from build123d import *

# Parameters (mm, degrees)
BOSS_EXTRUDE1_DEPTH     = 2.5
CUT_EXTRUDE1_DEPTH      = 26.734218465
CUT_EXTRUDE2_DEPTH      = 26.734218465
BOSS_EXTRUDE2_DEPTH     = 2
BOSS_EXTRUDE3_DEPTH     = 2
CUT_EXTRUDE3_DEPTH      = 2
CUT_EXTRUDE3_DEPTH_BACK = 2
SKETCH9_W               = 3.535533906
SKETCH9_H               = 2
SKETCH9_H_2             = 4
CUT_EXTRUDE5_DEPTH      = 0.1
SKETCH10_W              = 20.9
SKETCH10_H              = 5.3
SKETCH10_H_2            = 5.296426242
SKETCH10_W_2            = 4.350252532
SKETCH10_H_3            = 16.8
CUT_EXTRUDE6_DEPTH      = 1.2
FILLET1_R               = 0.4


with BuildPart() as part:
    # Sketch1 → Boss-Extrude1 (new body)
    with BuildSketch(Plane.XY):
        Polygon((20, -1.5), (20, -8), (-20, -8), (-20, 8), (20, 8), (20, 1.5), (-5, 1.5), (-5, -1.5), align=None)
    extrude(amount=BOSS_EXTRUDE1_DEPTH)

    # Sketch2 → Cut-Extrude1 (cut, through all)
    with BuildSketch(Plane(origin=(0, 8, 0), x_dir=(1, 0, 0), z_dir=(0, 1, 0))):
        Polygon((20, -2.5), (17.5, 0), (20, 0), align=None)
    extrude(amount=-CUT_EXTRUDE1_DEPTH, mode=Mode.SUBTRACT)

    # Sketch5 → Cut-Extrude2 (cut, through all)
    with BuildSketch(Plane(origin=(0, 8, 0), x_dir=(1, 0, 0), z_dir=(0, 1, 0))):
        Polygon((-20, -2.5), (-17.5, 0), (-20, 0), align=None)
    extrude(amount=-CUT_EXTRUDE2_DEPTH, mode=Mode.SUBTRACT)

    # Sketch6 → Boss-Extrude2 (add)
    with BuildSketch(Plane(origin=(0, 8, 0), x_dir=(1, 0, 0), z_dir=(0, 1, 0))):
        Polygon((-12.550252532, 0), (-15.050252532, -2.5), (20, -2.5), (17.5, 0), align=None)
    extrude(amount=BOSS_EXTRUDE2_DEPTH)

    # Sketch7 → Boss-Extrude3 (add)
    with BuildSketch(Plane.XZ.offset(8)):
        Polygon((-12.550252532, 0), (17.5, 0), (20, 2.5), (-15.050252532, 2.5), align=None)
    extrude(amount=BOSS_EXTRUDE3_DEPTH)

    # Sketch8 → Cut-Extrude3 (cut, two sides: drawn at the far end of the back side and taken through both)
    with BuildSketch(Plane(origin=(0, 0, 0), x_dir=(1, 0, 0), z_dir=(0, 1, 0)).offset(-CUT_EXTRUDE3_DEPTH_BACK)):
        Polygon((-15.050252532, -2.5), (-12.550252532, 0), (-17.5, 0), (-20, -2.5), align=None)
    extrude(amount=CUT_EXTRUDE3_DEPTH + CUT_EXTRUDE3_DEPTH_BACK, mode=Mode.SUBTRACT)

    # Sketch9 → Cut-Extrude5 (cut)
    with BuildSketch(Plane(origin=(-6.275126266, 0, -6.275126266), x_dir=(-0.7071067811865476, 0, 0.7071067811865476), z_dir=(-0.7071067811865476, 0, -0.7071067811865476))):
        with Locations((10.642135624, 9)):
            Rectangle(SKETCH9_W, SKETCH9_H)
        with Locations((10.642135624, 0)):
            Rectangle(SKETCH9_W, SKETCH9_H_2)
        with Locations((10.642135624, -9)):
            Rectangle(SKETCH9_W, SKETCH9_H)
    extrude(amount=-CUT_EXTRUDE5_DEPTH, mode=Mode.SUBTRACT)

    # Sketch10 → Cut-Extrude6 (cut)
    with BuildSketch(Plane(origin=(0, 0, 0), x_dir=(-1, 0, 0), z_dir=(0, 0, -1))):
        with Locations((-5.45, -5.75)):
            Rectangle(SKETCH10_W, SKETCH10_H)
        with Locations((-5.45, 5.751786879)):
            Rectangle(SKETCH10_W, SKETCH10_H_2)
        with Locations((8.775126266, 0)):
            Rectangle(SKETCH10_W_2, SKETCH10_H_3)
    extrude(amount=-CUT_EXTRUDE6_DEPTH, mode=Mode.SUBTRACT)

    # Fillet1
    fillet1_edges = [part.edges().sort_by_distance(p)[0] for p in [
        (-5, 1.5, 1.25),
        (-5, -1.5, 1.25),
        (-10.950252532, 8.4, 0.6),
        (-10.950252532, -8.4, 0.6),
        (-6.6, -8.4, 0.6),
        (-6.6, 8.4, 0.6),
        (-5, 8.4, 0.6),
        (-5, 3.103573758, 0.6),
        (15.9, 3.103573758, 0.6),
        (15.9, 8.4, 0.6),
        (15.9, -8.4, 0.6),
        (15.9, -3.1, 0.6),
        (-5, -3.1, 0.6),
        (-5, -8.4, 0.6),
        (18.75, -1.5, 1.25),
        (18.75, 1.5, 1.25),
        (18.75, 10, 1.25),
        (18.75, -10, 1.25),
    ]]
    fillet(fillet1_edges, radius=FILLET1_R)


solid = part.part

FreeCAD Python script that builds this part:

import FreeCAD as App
import Part
import Sketcher

V = App.Vector
Q = App.Units.Quantity


def edges_at(feature, points):
    """Names of the edges that pass closest to the given points."""
    edges = feature.Shape.Edges
    near = lambda p: min(range(len(edges)), key=lambda i: edges[i].distToShape(Part.Vertex(*p))[0])
    return sorted({f"Edge{near(p) + 1}" for p in points})

doc = App.newDocument("Part")
params = doc.addObject("Spreadsheet::Sheet", "Params")
for row, (alias, value) in enumerate([
    ("sketch1_width", "25 mm"),
    ("sketch1_width2", "40 mm"),
    ("sketch1_height", "3 mm"),
    ("sketch1_height2", "16 mm"),
    ("pad1_length", "2.5 mm"),
    ("sketch2_width", "2.5 mm"),
    ("sketch3_width", "2.5 mm"),
    ("pad2_length", "2 mm"),
    ("pad3_length", "2 mm"),
    ("pocket3_length", "2 mm"),
    ("pocket3_length2", "2 mm"),
    ("sketch7_height", "2 mm"),
    ("sketch7_height2", "4 mm"),
    ("pocket4_length", "0.1 mm"),
    ("sketch8_width", "20.9 mm"),
    ("sketch8_height", "5.3 mm"),
    ("sketch8_height2", "16.8 mm"),
    ("pocket5_length", "1.2 mm"),
    ("fillet_radius", "0.4 mm"),
], start=1):
    params.set(f"A{row}", alias)
    params.set(f"B{row}", "=" + value)
    params.setAlias(f"B{row}", alias)

body = doc.addObject("PartDesign::Body", "Body")

sketch1 = body.newObject("Sketcher::SketchObject", "Sketch")
sketch1.AttachmentSupport = (doc.getObject("XY_Plane"), [""])
sketch1.MapMode = "FlatFace"
sketch1.addGeometry([
    Part.LineSegment(V(20, -8, 0), V(20, -1.5, 0)),
    Part.LineSegment(V(20, -1.5, 0), V(-5, -1.5, 0)),
    Part.LineSegment(V(-5, -1.5, 0), V(-5, 1.5, 0)),
    Part.LineSegment(V(-5, 1.5, 0), V(20, 1.5, 0)),
    Part.LineSegment(V(20, 1.5, 0), V(20, 8, 0)),
    Part.LineSegment(V(20, 8, 0), V(-20, 8, 0)),
    Part.LineSegment(V(-20, 8, 0), V(-20, -8, 0)),
    Part.LineSegment(V(-20, -8, 0), V(20, -8, 0)),
], False)
sketch1.addConstraint([
    Sketcher.Constraint("Coincident", 0, 2, 1, 1),
    Sketcher.Constraint("Coincident", 1, 2, 2, 1),
    Sketcher.Constraint("Coincident", 2, 2, 3, 1),
    Sketcher.Constraint("Coincident", 3, 2, 4, 1),
    Sketcher.Constraint("Coincident", 4, 2, 5, 1),
    Sketcher.Constraint("Coincident", 5, 2, 6, 1),
    Sketcher.Constraint("Coincident", 6, 2, 7, 1),
    Sketcher.Constraint("Coincident", 7, 2, 0, 1),
    Sketcher.Constraint("Vertical", 0),
    Sketcher.Constraint("Horizontal", 1),
    Sketcher.Constraint("Vertical", 2),
    Sketcher.Constraint("Horizontal", 3),
    Sketcher.Constraint("Vertical", 4),
    Sketcher.Constraint("Horizontal", 5),
    Sketcher.Constraint("Vertical", 6),
    Sketcher.Constraint("Horizontal", 7),
    Sketcher.Constraint("Symmetric", 4, 2, 6, 2, -1, 1),
    Sketcher.Constraint("Symmetric", 0, 2, 3, 2, -1),
    Sketcher.Constraint("DistanceX", 1, 2, 1, 1, 25.0),
    Sketcher.Constraint("DistanceX", 5, 2, 5, 1, 40.0),
    Sketcher.Constraint("DistanceY", 2, 1, 2, 2, 3.0),
    Sketcher.Constraint("DistanceY", 6, 2, 6, 1, 16.0),
])
sketch1.setExpression("Constraints[18]", "Params.sketch1_width")
sketch1.setExpression("Constraints[19]", "Params.sketch1_width2")
sketch1.setExpression("Constraints[20]", "Params.sketch1_height")
sketch1.setExpression("Constraints[21]", "Params.sketch1_height2")
pad1 = body.newObject("PartDesign::Pad", "Pad")
pad1.Profile = sketch1
pad1.setExpression("Length", "Params.pad1_length")

sketch2 = body.newObject("Sketcher::SketchObject", "Sketch001")
sketch2.AttachmentSupport = (doc.getObject("XZ_Plane"), [""])
sketch2.MapMode = "FlatFace"
sketch2.AttachmentOffset = App.Placement(V(0, 0, -8), App.Rotation())
sketch2.addGeometry([
    Part.LineSegment(V(17.5, 0, 0), V(20, 2.5, 0)),
    Part.LineSegment(V(20, 2.5, 0), V(20, 0, 0)),
    Part.LineSegment(V(20, 0, 0), V(17.5, 0, 0)),
], False)
sketch2.addConstraint([
    Sketcher.Constraint("Coincident", 0, 2, 1, 1),
    Sketcher.Constraint("Coincident", 1, 2, 2, 1),
    Sketcher.Constraint("Coincident", 2, 2, 0, 1),
    Sketcher.Constraint("Vertical", 1),
    Sketcher.Constraint("Horizontal", 2),
    Sketcher.Constraint("PointOnObject", 1, 2, -1),
    Sketcher.Constraint("Equal", 2, 1),
    Sketcher.Constraint("DistanceX", 2, 2, 2, 1, 2.5),
    Sketcher.Constraint("DistanceX", -1, 1, 0, 2, 20.0),
])
sketch2.setExpression("Constraints[7]", "Params.sketch2_width")
pocket1 = body.newObject("PartDesign::Pocket", "Pocket")
pocket1.Profile = sketch2
pocket1.Type = "ThroughAll"
pocket1.Reversed = True

sketch3 = body.newObject("Sketcher::SketchObject", "Sketch002")
sketch3.AttachmentSupport = (doc.getObject("XZ_Plane"), [""])
sketch3.MapMode = "FlatFace"
sketch3.AttachmentOffset = App.Placement(V(0, 0, -8), App.Rotation())
sketch3.addGeometry([
    Part.LineSegment(V(-20, 2.5, 0), V(-17.5, 0, 0)),
    Part.LineSegment(V(-17.5, 0, 0), V(-20, 0, 0)),
    Part.LineSegment(V(-20, 0, 0), V(-20, 2.5, 0)),
], False)
sketch3.addConstraint([
    Sketcher.Constraint("Coincident", 0, 2, 1, 1),
    Sketcher.Constraint("Coincident", 1, 2, 2, 1),
    Sketcher.Constraint("Coincident", 2, 2, 0, 1),
    Sketcher.Constraint("Horizontal", 1),
    Sketcher.Constraint("Vertical", 2),
    Sketcher.Constraint("PointOnObject", 0, 2, -1),
    Sketcher.Constraint("Equal", 1, 2),
    Sketcher.Constraint("DistanceX", 1, 2, 1, 1, 2.5),
    Sketcher.Constraint("DistanceX", 1, 2, -1, 1, 20.0),
])
sketch3.setExpression("Constraints[7]", "Params.sketch3_width")
pocket2 = body.newObject("PartDesign::Pocket", "Pocket001")
pocket2.Profile = sketch3
pocket2.Type = "ThroughAll"
pocket2.Reversed = True

sketch4 = body.newObject("Sketcher::SketchObject", "Sketch003")
sketch4.AttachmentSupport = (doc.getObject("XZ_Plane"), [""])
sketch4.MapMode = "FlatFace"
sketch4.AttachmentOffset = App.Placement(V(0, 0, -8), App.Rotation())
sketch4.addGeometry([
    Part.LineSegment(V(-12.6, 0, 0), V(-15.1, 2.5, 0)),
    Part.LineSegment(V(-15.1, 2.5, 0), V(20, 2.5, 0)),
    Part.LineSegment(V(20, 2.5, 0), V(17.5, 0, 0)),
    Part.LineSegment(V(17.5, 0, 0), V(-12.6, 0, 0)),
], False)
sketch4.addConstraint([
    Sketcher.Constraint("Coincident", 0, 2, 1, 1),
    Sketcher.Constraint("Coincident", 1, 2, 2, 1),
    Sketcher.Constraint("Coincident", 2, 2, 3, 1),
    Sketcher.Constraint("Coincident", 3, 2, 0, 1),
    Sketcher.Constraint("Horizontal", 1),
    Sketcher.Constraint("Horizontal", 3),
    Sketcher.Constraint("PointOnObject", 2, 2, -1),
    Sketcher.Constraint("Perpendicular", 0, 2),
    Sketcher.Constraint("Equal", 0, 2),
    Sketcher.Constraint("DistanceX", -1, 1, 1, 2, 20.0),
    Sketcher.Constraint("DistanceY", -1, 1, 0, 2, 2.5),
    Sketcher.Constraint("DistanceX", 1, 1, 1, 2, 35.050253),
])
pad2 = body.newObject("PartDesign::Pad", "Pad001")
pad2.Profile = sketch4
pad2.setExpression("Length", "Params.pad2_length")
pad2.Reversed = True

sketch5 = body.newObject("Sketcher::SketchObject", "Sketch004")
sketch5.AttachmentSupport = (doc.getObject("XZ_Plane"), [""])
sketch5.MapMode = "FlatFace"
sketch5.AttachmentOffset = App.Placement(V(0, 0, 8), App.Rotation())
sketch5.addGeometry([
    Part.LineSegment(V(-12.6, 0, 0), V(17.5, 0, 0)),
    Part.LineSegment(V(17.5, 0, 0), V(20, 2.5, 0)),
    Part.LineSegment(V(20, 2.5, 0), V(-15.1, 2.5, 0)),
    Part.LineSegment(V(-15.1, 2.5, 0), V(-12.6, 0, 0)),
], False)
sketch5.addConstraint([
    Sketcher.Constraint("Coincident", 0, 2, 1, 1),
    Sketcher.Constraint("Coincident", 1, 2, 2, 1),
    Sketcher.Constraint("Coincident", 2, 2, 3, 1),
    Sketcher.Constraint("Coincident", 3, 2, 0, 1),
    Sketcher.Constraint("Horizontal", 0),
    Sketcher.Constraint("Horizontal", 2),
    Sketcher.Constraint("PointOnObject", 0, 2, -1),
    Sketcher.Constraint("Perpendicular", 1, 3),
    Sketcher.Constraint("Equal", 1, 3),
    Sketcher.Constraint("DistanceX", -1, 1, 1, 2, 20.0),
    Sketcher.Constraint("DistanceX", -1, 1, 0, 2, 17.5),
    Sketcher.Constraint("DistanceX", 0, 1, 0, 2, 30.050253),
])
pad3 = body.newObject("PartDesign::Pad", "Pad002")
pad3.Profile = sketch5
pad3.setExpression("Length", "Params.pad3_length")

sketch6 = body.newObject("Sketcher::SketchObject", "Sketch005")
sketch6.AttachmentSupport = (doc.getObject("XZ_Plane"), [""])
sketch6.MapMode = "FlatFace"
sketch6.addGeometry([
    Part.LineSegment(V(-15.1, 2.5, 0), V(-12.6, 0, 0)),
    Part.LineSegment(V(-12.6, 0, 0), V(-17.5, 0, 0)),
    Part.LineSegment(V(-17.5, 0, 0), V(-20, 2.5, 0)),
    Part.LineSegment(V(-20, 2.5, 0), V(-15.1, 2.5, 0)),
], False)
sketch6.addConstraint([
    Sketcher.Constraint("Coincident", 0, 2, 1, 1),
    Sketcher.Constraint("Coincident", 1, 2, 2, 1),
    Sketcher.Constraint("Coincident", 2, 2, 3, 1),
    Sketcher.Constraint("Coincident", 3, 2, 0, 1),
    Sketcher.Constraint("Horizontal", 1),
    Sketcher.Constraint("Horizontal", 3),
    Sketcher.Constraint("PointOnObject", 0, 2, -1),
    Sketcher.Constraint("Parallel", 0, 2),
    Sketcher.Constraint("Angle", 0, Q("-45 deg")),
    Sketcher.Constraint("DistanceX", 2, 2, -1, 1, 20.0),
    Sketcher.Constraint("DistanceX", 1, 2, -1, 1, 17.5),
    Sketcher.Constraint("DistanceX", 1, 2, 1, 1, 4.949747),
])
pocket3 = body.newObject("PartDesign::Pocket", "Pocket002")
pocket3.Profile = sketch6
pocket3.Type = "TwoLengths"
pocket3.setExpression("Length", "Params.pocket3_length")
pocket3.setExpression("Length2", "Params.pocket3_length2")

sketch7 = body.newObject("Sketcher::SketchObject", "Sketch006")
sketch7.Placement = App.Placement(V(-6.275126, 0, -6.275126), App.Rotation(V(-0.707106781, 0, 0.707106781), V(0, 0.999999999, 0), V(-0.707106781, 0, -0.707106781), "ZXY"))
sketch7.addGeometry([
    Part.LineSegment(V(8.9, 10, 0), V(8.9, 8, 0)),
    Part.LineSegment(V(8.9, 8, 0), V(12.4, 8, 0)),
    Part.LineSegment(V(12.4, 8, 0), V(12.4, 10, 0)),
    Part.LineSegment(V(12.4, 10, 0), V(8.9, 10, 0)),
    Part.LineSegment(V(8.9, 2, 0), V(8.9, -2, 0)),
    Part.LineSegment(V(8.9, -2, 0), V(12.4, -2, 0)),
    Part.LineSegment(V(12.4, -2, 0), V(12.4, 2, 0)),
    Part.LineSegment(V(12.4, 2, 0), V(8.9, 2, 0)),
    Part.LineSegment(V(8.9, -8, 0), V(8.9, -10, 0)),
    Part.LineSegment(V(8.9, -10, 0), V(12.4, -10, 0)),
    Part.LineSegment(V(12.4, -10, 0), V(12.4, -8, 0)),
    Part.LineSegment(V(12.4, -8, 0), V(8.9, -8, 0)),
], False)
sketch7.addConstraint([
    Sketcher.Constraint("Coincident", 0, 2, 1, 1),
    Sketcher.Constraint("Coincident", 1, 2, 2, 1),
    Sketcher.Constraint("Coincident", 2, 2, 3, 1),
    Sketcher.Constraint("Coincident", 3, 2, 0, 1),
    Sketcher.Constraint("Coincident", 4, 2, 5, 1),
    Sketcher.Constraint("Coincident", 5, 2, 6, 1),
    Sketcher.Constraint("Coincident", 6, 2, 7, 1),
    Sketcher.Constraint("Coincident", 7, 2, 4, 1),
    Sketcher.Constraint("Coincident", 8, 2, 9, 1),
    Sketcher.Constraint("Coincident", 9, 2, 10, 1),
    Sketcher.Constraint("Coincident", 10, 2, 11, 1),
    Sketcher.Constraint("Coincident", 11, 2, 8, 1),
    Sketcher.Constraint("Vertical", 0),
    Sketcher.Constraint("Horizontal", 1),
    Sketcher.Constraint("Vertical", 2),
    Sketcher.Constraint("Horizontal", 3),
    Sketcher.Constraint("Vertical", 4),
    Sketcher.Constraint("Horizontal", 5),
    Sketcher.Constraint("Vertical", 6),
    Sketcher.Constraint("Horizontal", 7),
    Sketcher.Constraint("Vertical", 8),
    Sketcher.Constraint("Horizontal", 9),
    Sketcher.Constraint("Vertical", 10),
    Sketcher.Constraint("Horizontal", 11),
    Sketcher.Constraint("Symmetric", 3, 2, 8, 2, -1),
    Sketcher.Constraint("Symmetric", 1, 2, 10, 2, -1),
    Sketcher.Constraint("Vertical", 3, 2, 4, 2),
    Sketcher.Constraint("Vertical", 2, 2, 5, 2),
    Sketcher.Constraint("DistanceY", 0, 2, 0, 1, 2.0),
    Sketcher.Constraint("DistanceY", 4, 2, 4, 1, 4.0),
    Sketcher.Constraint("DistanceY", -1, 1, 0, 2, 8.0),
    Sketcher.Constraint("DistanceY", 4, 2, -1, 1, 2.0),
    Sketcher.Constraint("DistanceX", 1, 1, 1, 2, 3.535534),
    Sketcher.Constraint("DistanceX", -1, 1, 0, 2, 8.874369),
])
sketch7.setExpression("Constraints[28]", "Params.sketch7_height")
sketch7.setExpression("Constraints[29]", "Params.sketch7_height2")
pocket4 = body.newObject("PartDesign::Pocket", "Pocket003")
pocket4.Profile = sketch7
pocket4.setExpression("Length", "Params.pocket4_length")

sketch8 = body.newObject("Sketcher::SketchObject", "Sketch007")
sketch8.AttachmentSupport = (doc.getObject("XY_Plane"), [""])
sketch8.MapMode = "FlatFace"
sketch8.addGeometry([
    Part.LineSegment(V(15.9, -3.1, 0), V(15.9, -8.4, 0)),
    Part.LineSegment(V(15.9, -8.4, 0), V(-5, -8.4, 0)),
    Part.LineSegment(V(-5, -8.4, 0), V(-5, -3.1, 0)),
    Part.LineSegment(V(-5, -3.1, 0), V(15.9, -3.1, 0)),
    Part.LineSegment(V(15.9, 8.4, 0), V(15.9, 3.1, 0)),
    Part.LineSegment(V(15.9, 3.1, 0), V(-5, 3.1, 0)),
    Part.LineSegment(V(-5, 3.1, 0), V(-5, 8.4, 0)),
    Part.LineSegment(V(-5, 8.4, 0), V(15.9, 8.4, 0)),
    Part.LineSegment(V(-6.6, 8.4, 0), V(-6.6, -8.4, 0)),
    Part.LineSegment(V(-6.6, -8.4, 0), V(-11, -8.4, 0)),
    Part.LineSegment(V(-11, -8.4, 0), V(-11, 8.4, 0)),
    Part.LineSegment(V(-11, 8.4, 0), V(-6.6, 8.4, 0)),
], False)
sketch8.addConstraint([
    Sketcher.Constraint("Coincident", 0, 2, 1, 1),
    Sketcher.Constraint("Coincident", 1, 2, 2, 1),
    Sketcher.Constraint("Coincident", 2, 2, 3, 1),
    Sketcher.Constraint("Coincident", 3, 2, 0, 1),
    Sketcher.Constraint("Coincident", 4, 2, 5, 1),
    Sketcher.Constraint("Coincident", 5, 2, 6, 1),
    Sketcher.Constraint("Coincident", 6, 2, 7, 1),
    Sketcher.Constraint("Coincident", 7, 2, 4, 1),
    Sketcher.Constraint("Coincident", 8, 2, 9, 1),
    Sketcher.Constraint("Coincident", 9, 2, 10, 1),
    Sketcher.Constraint("Coincident", 10, 2, 11, 1),
    Sketcher.Constraint("Coincident", 11, 2, 8, 1),
    Sketcher.Constraint("Vertical", 0),
    Sketcher.Constraint("Horizontal", 1),
    Sketcher.Constraint("Vertical", 2),
    Sketcher.Constraint("Horizontal", 3),
    Sketcher.Constraint("Vertical", 4),
    Sketcher.Constraint("Horizontal", 5),
    Sketcher.Constraint("Vertical", 6),
    Sketcher.Constraint("Horizontal", 7),
    Sketcher.Constraint("Vertical", 8),
    Sketcher.Constraint("Horizontal", 9),
    Sketcher.Constraint("Vertical", 10),
    Sketcher.Constraint("Horizontal", 11),
    Sketcher.Constraint("Symmetric", 1, 2, 6, 2, -1),
    Sketcher.Constraint("Horizontal", 1, 2, 8, 2),
    Sketcher.Constraint("Horizontal", 7, 2, 10, 2),
    Sketcher.Constraint("Vertical", 3, 2, 4, 2),
    Sketcher.Constraint("DistanceX", 1, 2, 1, 1, 20.9),
    Sketcher.Constraint("DistanceY", 0, 2, 0, 1, 5.3),
    Sketcher.Constraint("DistanceY", 8, 2, 8, 1, 16.8),
    Sketcher.Constraint("DistanceX", 1, 2, -1, 1, 5.0),
    Sketcher.Constraint("DistanceX", 8, 2, -1, 1, 6.6),
    Sketcher.Constraint("DistanceX", 9, 2, 9, 1, 4.350253),
    Sketcher.Constraint("DistanceY", 4, 2, 4, 1, 5.296426),
])
sketch8.setExpression("Constraints[28]", "Params.sketch8_width")
sketch8.setExpression("Constraints[29]", "Params.sketch8_height")
sketch8.setExpression("Constraints[30]", "Params.sketch8_height2")
pocket5 = body.newObject("PartDesign::Pocket", "Pocket004")
pocket5.Profile = sketch8
pocket5.setExpression("Length", "Params.pocket5_length")
pocket5.Reversed = True
doc.recompute()

fillet = body.newObject("PartDesign::Fillet", "Fillet")
fillet.Base = (pocket5, edges_at(pocket5, [
    (-5, 1.5, 1.25),
    (-5, -1.5, 1.25),
    (-10.95, 8.4, 0.6),
    (-10.95, -8.4, 0.6),
    (-6.6, -8.4, 0.6),
    (-6.6, 8.4, 0.6),
    (-5, 8.4, 0.6),
    (-5, 3.104, 0.6),
    (15.9, 3.104, 0.6),
    (15.9, 8.4, 0.6),
    (15.9, -8.4, 0.6),
    (15.9, -3.1, 0.6),
    (-5, -3.1, 0.6),
    (-5, -8.4, 0.6),
    (18.75, -1.5, 1.25),
    (18.75, 1.5, 1.25),
    (18.75, 10, 1.25),
    (18.75, -10, 1.25),
]))
fillet.setExpression("Radius", "Params.fillet_radius")

doc.recompute()
